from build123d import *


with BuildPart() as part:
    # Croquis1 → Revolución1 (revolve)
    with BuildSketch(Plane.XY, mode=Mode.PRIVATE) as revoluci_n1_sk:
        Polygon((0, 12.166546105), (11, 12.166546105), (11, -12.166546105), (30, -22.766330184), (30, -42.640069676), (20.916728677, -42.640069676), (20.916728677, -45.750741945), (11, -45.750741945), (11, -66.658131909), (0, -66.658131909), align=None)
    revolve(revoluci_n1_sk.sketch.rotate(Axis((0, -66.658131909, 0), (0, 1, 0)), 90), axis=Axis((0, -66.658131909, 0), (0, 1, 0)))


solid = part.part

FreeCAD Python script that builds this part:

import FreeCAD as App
import Part
import Sketcher
from FreeCAD import Vector
Q = App.Units.Quantity


def add_polygon(sketch, points):
    """Adds a closed chain of lines whose ends are joined by coincident constraints."""
    first, n = sketch.GeometryCount, len(points)
    for a, b in zip(points, points[1:] + points[:1]):
        sketch.addGeometry(Part.LineSegment(App.Vector(*a, 0), App.Vector(*b, 0)), False)
    for i in range(n):
        sketch.addConstraint(Sketcher.Constraint("Coincident", first + i, 2, first + (i + 1) % n, 1))

doc = App.newDocument("Part")
body = doc.addObject("PartDesign::Body", "Body")

# Sketch on XY plane
sketch1 = body.newObject("Sketcher::SketchObject", "Sketch")
sketch1.AttachmentSupport = (doc.getObject("XY_Plane"), [""])
sketch1.MapMode = "FlatFace"
add_polygon(sketch1, [(11, 12.2), (0, 12.2), (0, -66.7), (11, -66.7), (11, -45.8), (20.9, -45.8), (20.9, -42.6), (30, -42.6), (30, -22.8), (11, -12.2)])  # lines 0-9
sketch1.addConstraint([
    Sketcher.Constraint("Horizontal", 0),
    Sketcher.Constraint("Vertical", 1),
    Sketcher.Constraint("Horizontal", 2),
    Sketcher.Constraint("Vertical", 3),
    Sketcher.Constraint("Horizontal", 4),
    Sketcher.Constraint("Vertical", 5),
    Sketcher.Constraint("Horizontal", 6),
    Sketcher.Constraint("Vertical", 7),
    Sketcher.Constraint("Vertical", 9),
    Sketcher.Constraint("PointOnObject", 0, 2, -2),
    Sketcher.Constraint("Vertical", 3, 2, 8, 2),
    Sketcher.Constraint("DistanceX", 0, 2, 0, 1, Q("11 mm")),
    Sketcher.Constraint("DistanceX", -1, 1, 6, 2, Q("30 mm")),
    Sketcher.Constraint("DistanceX", 4, 1, 4, 2, Q("9.916729 mm")),
    Sketcher.Constraint("DistanceY", 1, 2, 1, 1, Q("78.824678 mm")),
    Sketcher.Constraint("DistanceY", 3, 1, 3, 2, Q("20.90739 mm")),
    Sketcher.Constraint("DistanceY", 7, 1, 7, 2, Q("19.873739 mm")),
    Sketcher.Constraint("DistanceY", 5, 1, 5, 2, Q("3.110672 mm")),
    Sketcher.Constraint("DistanceY", 9, 1, 9, 2, Q("24.333092 mm")),
    Sketcher.Constraint("DistanceY", 1, 2, -1, 1, Q("66.658132 mm")),
])
revolution = body.newObject("PartDesign::Revolution", "Revolution")
revolution.Profile = sketch1
revolution.ReferenceAxis = (sketch1, ["V_Axis"])
revolution.Angle = 360

doc.recompute()
